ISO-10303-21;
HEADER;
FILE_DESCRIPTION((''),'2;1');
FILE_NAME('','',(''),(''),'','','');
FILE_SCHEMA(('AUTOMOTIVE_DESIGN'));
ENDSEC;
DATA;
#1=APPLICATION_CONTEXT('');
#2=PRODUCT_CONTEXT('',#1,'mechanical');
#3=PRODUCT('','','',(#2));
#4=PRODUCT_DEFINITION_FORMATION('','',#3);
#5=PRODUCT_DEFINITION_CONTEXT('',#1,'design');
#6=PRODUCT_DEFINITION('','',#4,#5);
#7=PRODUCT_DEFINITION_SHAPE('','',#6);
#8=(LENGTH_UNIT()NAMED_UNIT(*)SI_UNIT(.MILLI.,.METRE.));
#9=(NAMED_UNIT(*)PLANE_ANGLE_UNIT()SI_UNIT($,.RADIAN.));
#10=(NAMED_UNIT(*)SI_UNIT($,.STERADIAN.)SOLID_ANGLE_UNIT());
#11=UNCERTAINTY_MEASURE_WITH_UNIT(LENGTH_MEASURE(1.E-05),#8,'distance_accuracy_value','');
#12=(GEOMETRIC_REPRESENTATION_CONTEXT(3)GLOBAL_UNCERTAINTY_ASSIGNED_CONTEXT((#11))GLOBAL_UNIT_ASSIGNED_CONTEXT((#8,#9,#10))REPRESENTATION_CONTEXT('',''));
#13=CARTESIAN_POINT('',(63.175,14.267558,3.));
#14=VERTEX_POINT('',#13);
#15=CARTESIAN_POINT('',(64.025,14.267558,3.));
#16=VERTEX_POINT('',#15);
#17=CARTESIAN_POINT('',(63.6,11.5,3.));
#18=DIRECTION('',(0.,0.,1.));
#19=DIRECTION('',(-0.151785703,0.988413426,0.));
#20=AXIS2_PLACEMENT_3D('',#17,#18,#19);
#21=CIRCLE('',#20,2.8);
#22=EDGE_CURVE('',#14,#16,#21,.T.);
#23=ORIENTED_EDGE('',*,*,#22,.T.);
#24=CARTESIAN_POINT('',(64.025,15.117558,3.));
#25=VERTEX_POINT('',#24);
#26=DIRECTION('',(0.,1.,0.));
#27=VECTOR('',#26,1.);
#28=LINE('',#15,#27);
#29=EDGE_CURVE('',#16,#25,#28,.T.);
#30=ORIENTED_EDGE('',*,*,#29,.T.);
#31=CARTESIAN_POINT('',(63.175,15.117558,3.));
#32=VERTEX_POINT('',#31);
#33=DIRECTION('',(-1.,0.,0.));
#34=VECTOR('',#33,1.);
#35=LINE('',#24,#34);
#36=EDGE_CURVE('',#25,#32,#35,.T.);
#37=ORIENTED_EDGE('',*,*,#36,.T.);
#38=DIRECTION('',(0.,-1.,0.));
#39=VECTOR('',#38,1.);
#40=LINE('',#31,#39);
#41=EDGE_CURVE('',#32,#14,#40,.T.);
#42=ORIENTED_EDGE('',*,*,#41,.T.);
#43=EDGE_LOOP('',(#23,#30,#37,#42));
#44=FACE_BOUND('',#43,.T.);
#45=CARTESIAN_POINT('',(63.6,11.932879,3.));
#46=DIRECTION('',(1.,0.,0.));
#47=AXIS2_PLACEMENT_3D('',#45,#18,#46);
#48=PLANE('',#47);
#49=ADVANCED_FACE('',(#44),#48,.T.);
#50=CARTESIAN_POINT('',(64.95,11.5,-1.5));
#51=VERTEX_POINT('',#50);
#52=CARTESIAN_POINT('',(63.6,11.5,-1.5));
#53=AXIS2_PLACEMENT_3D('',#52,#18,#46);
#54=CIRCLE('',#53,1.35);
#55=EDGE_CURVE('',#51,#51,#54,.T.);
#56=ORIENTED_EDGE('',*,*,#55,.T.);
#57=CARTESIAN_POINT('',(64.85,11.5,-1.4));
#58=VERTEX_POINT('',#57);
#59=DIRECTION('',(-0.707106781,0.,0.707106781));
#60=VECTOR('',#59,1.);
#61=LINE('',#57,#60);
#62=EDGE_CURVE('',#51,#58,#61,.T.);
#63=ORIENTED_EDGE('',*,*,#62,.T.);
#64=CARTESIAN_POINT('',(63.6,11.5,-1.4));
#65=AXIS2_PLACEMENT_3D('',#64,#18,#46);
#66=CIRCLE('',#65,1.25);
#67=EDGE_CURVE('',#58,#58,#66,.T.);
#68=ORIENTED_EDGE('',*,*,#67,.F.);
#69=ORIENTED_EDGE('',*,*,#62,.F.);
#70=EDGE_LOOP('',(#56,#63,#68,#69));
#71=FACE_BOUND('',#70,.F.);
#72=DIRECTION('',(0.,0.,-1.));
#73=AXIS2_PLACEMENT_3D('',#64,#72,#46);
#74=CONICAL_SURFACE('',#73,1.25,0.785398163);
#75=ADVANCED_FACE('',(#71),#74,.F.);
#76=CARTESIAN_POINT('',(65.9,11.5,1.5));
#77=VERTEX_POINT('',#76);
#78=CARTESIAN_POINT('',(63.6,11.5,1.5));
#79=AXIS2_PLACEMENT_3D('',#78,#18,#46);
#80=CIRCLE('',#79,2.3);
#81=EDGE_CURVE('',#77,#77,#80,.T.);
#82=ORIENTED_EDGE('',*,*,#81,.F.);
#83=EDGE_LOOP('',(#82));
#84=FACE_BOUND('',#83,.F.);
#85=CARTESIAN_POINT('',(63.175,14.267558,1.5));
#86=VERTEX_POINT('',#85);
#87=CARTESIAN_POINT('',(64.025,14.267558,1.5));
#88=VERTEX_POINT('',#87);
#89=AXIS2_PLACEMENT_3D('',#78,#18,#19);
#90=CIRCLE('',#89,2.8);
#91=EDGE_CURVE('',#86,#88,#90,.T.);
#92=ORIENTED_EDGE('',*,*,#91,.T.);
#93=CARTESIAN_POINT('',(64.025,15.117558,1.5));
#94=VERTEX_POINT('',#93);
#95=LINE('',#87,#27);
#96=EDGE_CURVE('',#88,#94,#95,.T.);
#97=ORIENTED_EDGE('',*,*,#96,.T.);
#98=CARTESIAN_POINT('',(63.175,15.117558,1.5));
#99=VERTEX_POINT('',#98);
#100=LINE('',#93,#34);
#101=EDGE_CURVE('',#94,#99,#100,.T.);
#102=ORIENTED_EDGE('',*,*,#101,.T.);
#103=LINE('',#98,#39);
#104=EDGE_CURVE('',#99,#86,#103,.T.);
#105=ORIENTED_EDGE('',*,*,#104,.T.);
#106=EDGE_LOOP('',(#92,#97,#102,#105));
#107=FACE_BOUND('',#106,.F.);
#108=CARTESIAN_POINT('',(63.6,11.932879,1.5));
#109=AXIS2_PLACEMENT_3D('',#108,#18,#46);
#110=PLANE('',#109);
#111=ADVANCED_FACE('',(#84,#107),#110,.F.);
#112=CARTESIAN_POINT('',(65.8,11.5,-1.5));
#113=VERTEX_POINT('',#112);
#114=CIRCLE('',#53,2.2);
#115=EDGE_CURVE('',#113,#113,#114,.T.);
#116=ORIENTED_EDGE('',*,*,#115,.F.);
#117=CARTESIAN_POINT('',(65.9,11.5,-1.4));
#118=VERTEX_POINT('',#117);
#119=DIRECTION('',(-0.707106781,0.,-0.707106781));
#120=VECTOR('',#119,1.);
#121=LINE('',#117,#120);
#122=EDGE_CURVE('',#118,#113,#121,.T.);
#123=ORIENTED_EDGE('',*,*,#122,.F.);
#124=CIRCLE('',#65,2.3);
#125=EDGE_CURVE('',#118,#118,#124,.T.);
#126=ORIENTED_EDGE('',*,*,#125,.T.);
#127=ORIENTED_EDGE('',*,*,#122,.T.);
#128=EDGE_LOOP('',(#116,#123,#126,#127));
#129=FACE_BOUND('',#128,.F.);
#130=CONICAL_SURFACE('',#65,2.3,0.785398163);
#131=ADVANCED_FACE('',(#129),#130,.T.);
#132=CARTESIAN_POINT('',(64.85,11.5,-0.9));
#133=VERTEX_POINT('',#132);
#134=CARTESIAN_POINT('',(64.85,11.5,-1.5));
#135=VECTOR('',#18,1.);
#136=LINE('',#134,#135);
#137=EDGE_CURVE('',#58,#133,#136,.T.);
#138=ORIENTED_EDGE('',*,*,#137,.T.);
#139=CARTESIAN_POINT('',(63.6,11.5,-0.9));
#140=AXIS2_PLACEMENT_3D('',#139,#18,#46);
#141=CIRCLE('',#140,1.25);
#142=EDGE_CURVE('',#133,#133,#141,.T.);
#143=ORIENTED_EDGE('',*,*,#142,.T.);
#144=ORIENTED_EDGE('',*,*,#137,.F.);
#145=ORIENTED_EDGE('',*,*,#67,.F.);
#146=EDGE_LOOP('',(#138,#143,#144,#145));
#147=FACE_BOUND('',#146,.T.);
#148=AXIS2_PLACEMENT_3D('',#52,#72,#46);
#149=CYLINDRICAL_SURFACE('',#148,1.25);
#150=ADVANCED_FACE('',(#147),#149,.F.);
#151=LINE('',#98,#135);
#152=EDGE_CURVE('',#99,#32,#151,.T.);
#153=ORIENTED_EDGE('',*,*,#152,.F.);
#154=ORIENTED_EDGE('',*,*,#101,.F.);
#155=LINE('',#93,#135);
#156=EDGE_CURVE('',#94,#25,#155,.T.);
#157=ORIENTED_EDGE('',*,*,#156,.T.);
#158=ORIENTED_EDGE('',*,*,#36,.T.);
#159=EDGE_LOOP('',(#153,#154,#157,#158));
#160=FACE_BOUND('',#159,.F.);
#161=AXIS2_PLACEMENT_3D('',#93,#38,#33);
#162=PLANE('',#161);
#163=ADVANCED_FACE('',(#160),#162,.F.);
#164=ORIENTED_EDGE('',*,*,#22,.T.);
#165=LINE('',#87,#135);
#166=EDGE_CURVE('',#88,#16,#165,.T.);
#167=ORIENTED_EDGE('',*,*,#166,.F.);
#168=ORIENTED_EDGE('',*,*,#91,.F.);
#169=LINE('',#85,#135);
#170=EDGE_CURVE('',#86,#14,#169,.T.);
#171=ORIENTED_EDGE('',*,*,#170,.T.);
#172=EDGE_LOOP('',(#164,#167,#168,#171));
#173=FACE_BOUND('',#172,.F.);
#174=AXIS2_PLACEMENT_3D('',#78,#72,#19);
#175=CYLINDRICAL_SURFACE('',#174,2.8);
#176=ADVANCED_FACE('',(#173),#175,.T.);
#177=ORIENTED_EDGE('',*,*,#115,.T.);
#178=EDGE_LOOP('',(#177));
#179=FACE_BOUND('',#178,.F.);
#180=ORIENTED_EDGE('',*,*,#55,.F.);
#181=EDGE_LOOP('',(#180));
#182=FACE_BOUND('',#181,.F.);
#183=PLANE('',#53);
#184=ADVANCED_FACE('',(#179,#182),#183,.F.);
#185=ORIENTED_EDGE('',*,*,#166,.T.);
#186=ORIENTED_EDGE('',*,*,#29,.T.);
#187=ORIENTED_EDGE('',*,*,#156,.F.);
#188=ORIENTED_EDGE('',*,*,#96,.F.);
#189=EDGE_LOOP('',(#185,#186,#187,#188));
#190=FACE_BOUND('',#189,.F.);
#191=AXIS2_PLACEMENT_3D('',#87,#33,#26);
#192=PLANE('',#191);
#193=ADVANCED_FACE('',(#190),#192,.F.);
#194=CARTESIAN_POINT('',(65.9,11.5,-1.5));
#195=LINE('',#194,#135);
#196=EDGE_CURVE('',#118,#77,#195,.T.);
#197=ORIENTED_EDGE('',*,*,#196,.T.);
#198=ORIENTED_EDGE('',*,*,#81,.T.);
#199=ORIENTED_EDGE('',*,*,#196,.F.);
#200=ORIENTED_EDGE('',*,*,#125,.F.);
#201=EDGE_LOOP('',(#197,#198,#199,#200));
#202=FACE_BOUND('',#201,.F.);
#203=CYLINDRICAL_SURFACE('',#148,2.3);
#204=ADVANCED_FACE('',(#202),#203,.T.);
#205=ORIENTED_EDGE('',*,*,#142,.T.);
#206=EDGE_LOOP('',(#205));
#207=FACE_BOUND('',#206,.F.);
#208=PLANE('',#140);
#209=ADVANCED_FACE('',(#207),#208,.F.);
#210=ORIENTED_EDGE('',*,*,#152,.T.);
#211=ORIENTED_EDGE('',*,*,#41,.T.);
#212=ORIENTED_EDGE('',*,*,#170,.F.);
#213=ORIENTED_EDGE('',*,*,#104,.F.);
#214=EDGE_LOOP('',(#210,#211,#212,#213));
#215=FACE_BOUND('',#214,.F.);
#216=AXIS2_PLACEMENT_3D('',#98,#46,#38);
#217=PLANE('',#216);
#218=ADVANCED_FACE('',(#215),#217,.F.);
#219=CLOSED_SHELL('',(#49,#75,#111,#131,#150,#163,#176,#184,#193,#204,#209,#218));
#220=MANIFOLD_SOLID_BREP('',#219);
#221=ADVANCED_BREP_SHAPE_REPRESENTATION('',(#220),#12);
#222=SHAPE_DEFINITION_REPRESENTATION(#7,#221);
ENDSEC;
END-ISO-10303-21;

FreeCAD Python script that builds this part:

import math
import FreeCAD as App
import Part
import Sketcher
from FreeCAD import Vector


def edges_at(feature, points):
    """Names of the edges that pass closest to the given points."""
    edges = feature.Shape.Edges
    near = lambda p: min(range(len(edges)), key=lambda i: edges[i].distToShape(Part.Vertex(*p))[0])
    return sorted({f"Edge{near(p) + 1}" for p in points})

doc = App.newDocument("Part")
params = doc.addObject("Spreadsheet::Sheet", "Params")
for row, (alias, value) in enumerate([
    ("sketch1_diameter", "4.6 mm"),
    ("pad1_length", "3 mm"),
    ("sketch2_radius", "2.8 mm"),
    ("sketch2_width", "0.85 mm"),
    ("pad2_length", "1.5 mm"),
    ("sketch3_diameter", "2.5 mm"),
    ("pocket1_length", "0.6 mm"),
    ("chamfer_size", "0.1 mm"),
], start=1):
    params.set(f"A{row}", alias)
    params.set(f"B{row}", "=" + value)
    params.setAlias(f"B{row}", alias)

body = doc.addObject("PartDesign::Body", "Body")

# Sketch on XY plane
sketch1 = body.newObject("Sketcher::SketchObject", "Sketch")
sketch1.AttachmentSupport = (doc.getObject("XY_Plane"), [""])
sketch1.MapMode = "FlatFace"
sketch1.addGeometry(Part.Circle(Vector(0, 0, 0), Vector(0, 0, 1), 2.3), False)
sketch1.addConstraint([
    Sketcher.Constraint("Coincident", 0, 3, -1, 1),
    Sketcher.Constraint("Diameter", 0, 4.6),
])
sketch1.setExpression("Constraints[1]", "Params.sketch1_diameter")
pad1 = body.newObject("PartDesign::Pad", "Pad")
pad1.Profile = sketch1
pad1.setExpression("Length", "Params.pad1_length")

# Sketch on XY plane
sketch2 = body.newObject("Sketcher::SketchObject", "Sketch001")
sketch2.AttachmentSupport = (doc.getObject("XY_Plane"), [""])
sketch2.MapMode = "FlatFace"
sketch2.AttachmentOffset = App.Placement(Vector(0, 0, 3), App.Rotation())
sketch2.addGeometry([
    Part.LineSegment(Vector(0.4, 2.8, 0), Vector(0.4, 3.6, 0)),
    Part.LineSegment(Vector(0.4, 3.6, 0), Vector(-0.4, 3.6, 0)),
    Part.LineSegment(Vector(-0.4, 3.6, 0), Vector(-0.4, 2.8, 0)),
    Part.ArcOfCircle(Part.Circle(Vector(0, 0, 0), Vector(0, 0, 1), 2.8), math.radians(99), math.radians(441)),
], False)
sketch2.addConstraint([
    Sketcher.Constraint("Coincident", 0, 2, 1, 1),
    Sketcher.Constraint("Coincident", 1, 2, 2, 1),
    Sketcher.Constraint("Coincident", 2, 2, 3, 1),
    Sketcher.Constraint("Coincident", 3, 2, 0, 1),
    Sketcher.Constraint("Vertical", 0),
    Sketcher.Constraint("Horizontal", 1),
    Sketcher.Constraint("Vertical", 2),
    Sketcher.Constraint("Coincident", 3, 3, -1, 1),
    Sketcher.Constraint("Horizontal", 2, 2, 3, 2),
    Sketcher.Constraint("Equal", 1, 0),
    Sketcher.Constraint("Radius", 3, 2.8),
    Sketcher.Constraint("DistanceX", 1, 2, 1, 1, 0.85),
])
sketch2.setExpression("Constraints[10]", "Params.sketch2_radius")
sketch2.setExpression("Constraints[11]", "Params.sketch2_width")
pad2 = body.newObject("PartDesign::Pad", "Pad001")
pad2.Profile = sketch2
pad2.setExpression("Length", "Params.pad2_length")

# Sketch on XY plane
sketch3 = body.newObject("Sketcher::SketchObject", "Sketch002")
sketch3.AttachmentSupport = (doc.getObject("XY_Plane"), [""])
sketch3.MapMode = "FlatFace"
sketch3.addGeometry(Part.Circle(Vector(0, 0, 0), Vector(0, 0, 1), 1.2), False)
sketch3.addConstraint([
    Sketcher.Constraint("Coincident", 0, 3, -1, 1),
    Sketcher.Constraint("Diameter", 0, 2.5),
])
sketch3.setExpression("Constraints[1]", "Params.sketch3_diameter")
pocket1 = body.newObject("PartDesign::Pocket", "Pocket")
pocket1.Profile = sketch3
pocket1.setExpression("Length", "Params.pocket1_length")
pocket1.Reversed = True
doc.recompute()

chamfer = body.newObject("PartDesign::Chamfer", "Chamfer")
chamfer.Base = (pocket1, edges_at(pocket1, [(-1.25, 0, 0), (-2.3, 0, 0)]))
chamfer.setExpression("Size", "Params.chamfer_size")
body2 = doc.addObject("PartDesign::Body", "Body001")
doc.recompute()

body.Placement = App.Placement(Vector(63.6, 11.5, -1.5), App.Rotation(Vector(0, 0, 1), 0))
boolean = body2.newObject("PartDesign::Boolean", "Boolean")
boolean.Type = "Fuse"
boolean.addObjects([body])

doc.recompute()
